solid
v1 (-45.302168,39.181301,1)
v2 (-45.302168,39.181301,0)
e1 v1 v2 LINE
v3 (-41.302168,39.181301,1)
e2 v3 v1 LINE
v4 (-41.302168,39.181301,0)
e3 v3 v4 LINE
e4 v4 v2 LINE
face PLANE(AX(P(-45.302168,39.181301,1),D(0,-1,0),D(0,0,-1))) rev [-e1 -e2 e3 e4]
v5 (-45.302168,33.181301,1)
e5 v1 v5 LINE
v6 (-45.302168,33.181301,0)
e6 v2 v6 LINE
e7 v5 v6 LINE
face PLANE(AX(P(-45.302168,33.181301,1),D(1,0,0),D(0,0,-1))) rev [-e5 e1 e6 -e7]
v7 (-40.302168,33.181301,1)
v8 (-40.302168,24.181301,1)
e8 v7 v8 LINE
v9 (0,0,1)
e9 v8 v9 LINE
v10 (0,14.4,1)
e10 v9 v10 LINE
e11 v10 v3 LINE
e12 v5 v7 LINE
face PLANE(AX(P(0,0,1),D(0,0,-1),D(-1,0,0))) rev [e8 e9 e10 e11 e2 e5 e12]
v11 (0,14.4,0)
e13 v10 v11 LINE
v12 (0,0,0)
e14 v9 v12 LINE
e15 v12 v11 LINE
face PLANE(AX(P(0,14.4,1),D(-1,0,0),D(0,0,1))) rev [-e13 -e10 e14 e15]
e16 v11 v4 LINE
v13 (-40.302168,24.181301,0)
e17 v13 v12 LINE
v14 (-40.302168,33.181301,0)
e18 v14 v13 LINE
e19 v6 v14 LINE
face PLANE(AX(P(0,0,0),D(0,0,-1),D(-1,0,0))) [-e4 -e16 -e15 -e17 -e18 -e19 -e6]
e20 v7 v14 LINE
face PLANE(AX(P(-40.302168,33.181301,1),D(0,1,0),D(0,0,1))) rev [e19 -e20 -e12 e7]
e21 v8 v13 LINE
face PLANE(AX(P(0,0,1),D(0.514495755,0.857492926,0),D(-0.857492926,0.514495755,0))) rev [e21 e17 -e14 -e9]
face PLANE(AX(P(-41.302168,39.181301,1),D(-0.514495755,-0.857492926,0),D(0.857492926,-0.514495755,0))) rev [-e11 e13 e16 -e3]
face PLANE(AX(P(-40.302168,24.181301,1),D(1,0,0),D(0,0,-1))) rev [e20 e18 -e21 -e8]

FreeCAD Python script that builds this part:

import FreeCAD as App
import Part
import Sketcher
from FreeCAD import Vector
Q = App.Units.Quantity

doc = App.newDocument("Part")
body = doc.addObject("PartDesign::Body", "Body")

sketch1 = body.newObject("Sketcher::SketchObject", "Sketch")
sketch1.AttachmentSupport = (doc.getObject("XY_Plane"), [""])
sketch1.MapMode = "FlatFace"
sketch1.addGeometry(Part.LineSegment(Vector(-40.3, 24.2, 0), Vector(0, 0, 0)), False)
sketch1.addGeometry(Part.LineSegment(Vector(0, 0, 0), Vector(0, 14.4, 0)), False)
sketch1.addGeometry(Part.LineSegment(Vector(0, 14.4, 0), Vector(-41.3, 39.2, 0)), False)
sketch1.addGeometry(Part.LineSegment(Vector(-41.3, 39.2, 0), Vector(-45.3, 39.2, 0)), False)
sketch1.addGeometry(Part.LineSegment(Vector(-45.3, 39.2, 0), Vector(-45.3, 33.2, 0)), False)
sketch1.addGeometry(Part.LineSegment(Vector(-45.3, 33.2, 0), Vector(-40.3, 33.2, 0)), False)
sketch1.addGeometry(Part.LineSegment(Vector(-40.3, 33.2, 0), Vector(-40.3, 24.2, 0)), False)
sketch1.addConstraint(Sketcher.Constraint("Coincident", 0, 2, 1, 1))
sketch1.addConstraint(Sketcher.Constraint("Coincident", 1, 2, 2, 1))
sketch1.addConstraint(Sketcher.Constraint("Coincident", 2, 2, 3, 1))
sketch1.addConstraint(Sketcher.Constraint("Coincident", 3, 2, 4, 1))
sketch1.addConstraint(Sketcher.Constraint("Coincident", 4, 2, 5, 1))
sketch1.addConstraint(Sketcher.Constraint("Coincident", 5, 2, 6, 1))
sketch1.addConstraint(Sketcher.Constraint("Coincident", 6, 2, 0, 1))
sketch1.addConstraint(Sketcher.Constraint("Vertical", 1))
sketch1.addConstraint(Sketcher.Constraint("Horizontal", 3))
sketch1.addConstraint(Sketcher.Constraint("Vertical", 4))
sketch1.addConstraint(Sketcher.Constraint("Horizontal", 5))
sketch1.addConstraint(Sketcher.Constraint("Vertical", 6))
sketch1.addConstraint(Sketcher.Constraint("Coincident", 0, 2, -1, 1))
sketch1.addConstraint(Sketcher.Constraint("Parallel", 0, 2))
sketch1.addConstraint(Sketcher.Constraint("DistanceX", 3, 2, 3, 1, Q("4 mm")))
sketch1.addConstraint(Sketcher.Constraint("DistanceX", 5, 1, 5, 2, Q("5 mm")))
sketch1.addConstraint(Sketcher.Constraint("DistanceY", 4, 2, 4, 1, Q("6 mm")))
sketch1.addConstraint(Sketcher.Constraint("DistanceY", 6, 2, 6, 1, Q("9 mm")))
sketch1.addConstraint(Sketcher.Constraint("Distance", 0, Q("47 mm")))
sketch1.addConstraint(Sketcher.Constraint("DistanceY", 1, 1, 1, 2, Q("14.4 mm")))
pad1 = body.newObject("PartDesign::Pad", "Pad")
pad1.Profile = sketch1
pad1.Length = 1

doc.recompute()
